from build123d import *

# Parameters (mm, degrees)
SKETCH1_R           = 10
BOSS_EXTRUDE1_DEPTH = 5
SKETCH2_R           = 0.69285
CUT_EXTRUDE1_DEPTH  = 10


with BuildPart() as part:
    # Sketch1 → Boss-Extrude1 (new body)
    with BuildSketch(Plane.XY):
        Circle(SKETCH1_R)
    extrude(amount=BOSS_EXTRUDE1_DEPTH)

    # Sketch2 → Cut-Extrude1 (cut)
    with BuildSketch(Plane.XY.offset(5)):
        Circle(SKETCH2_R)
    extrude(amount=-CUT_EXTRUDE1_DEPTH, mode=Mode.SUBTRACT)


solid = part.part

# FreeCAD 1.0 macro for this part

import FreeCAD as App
import Part
import Sketcher
Q = App.Units.Quantity

doc = App.newDocument("Part")
body = doc.addObject("PartDesign::Body", "Body")

# Sketch on XY plane
sketch1 = body.newObject("Sketcher::SketchObject", "Sketch")
sketch1.AttachmentSupport = (doc.getObject("XY_Plane"), [""])
sketch1.MapMode = "FlatFace"
sketch1.addGeometry(Part.Circle(App.Vector(0, 0, 0), App.Vector(0, 0, 1), 10), False)
sketch1.addConstraint([
    Sketcher.Constraint("Coincident", 0, 3, -1, 1),
    Sketcher.Constraint("Diameter", 0, Q("20 mm")),
])
pad1 = body.newObject("PartDesign::Pad", "Pad")
pad1.Profile = sketch1
pad1.Length = 5

# Sketch on XY plane
sketch2 = body.newObject("Sketcher::SketchObject", "Sketch001")
sketch2.AttachmentSupport = (doc.getObject("XY_Plane"), [""])
sketch2.MapMode = "FlatFace"
sketch2.AttachmentOffset = App.Placement(App.Vector(0, 0, 5), App.Rotation())
sketch2.addGeometry(Part.Circle(App.Vector(0, 0, 0), App.Vector(0, 0, 1), 0.7), False)
sketch2.addConstraint([
    Sketcher.Constraint("Coincident", 0, 3, -1, 1),
    Sketcher.Constraint("Diameter", 0, Q("1.3857 mm")),
])
pocket1 = body.newObject("PartDesign::Pocket", "Pocket")
pocket1.Profile = sketch2
pocket1.Length = 10

doc.recompute()
